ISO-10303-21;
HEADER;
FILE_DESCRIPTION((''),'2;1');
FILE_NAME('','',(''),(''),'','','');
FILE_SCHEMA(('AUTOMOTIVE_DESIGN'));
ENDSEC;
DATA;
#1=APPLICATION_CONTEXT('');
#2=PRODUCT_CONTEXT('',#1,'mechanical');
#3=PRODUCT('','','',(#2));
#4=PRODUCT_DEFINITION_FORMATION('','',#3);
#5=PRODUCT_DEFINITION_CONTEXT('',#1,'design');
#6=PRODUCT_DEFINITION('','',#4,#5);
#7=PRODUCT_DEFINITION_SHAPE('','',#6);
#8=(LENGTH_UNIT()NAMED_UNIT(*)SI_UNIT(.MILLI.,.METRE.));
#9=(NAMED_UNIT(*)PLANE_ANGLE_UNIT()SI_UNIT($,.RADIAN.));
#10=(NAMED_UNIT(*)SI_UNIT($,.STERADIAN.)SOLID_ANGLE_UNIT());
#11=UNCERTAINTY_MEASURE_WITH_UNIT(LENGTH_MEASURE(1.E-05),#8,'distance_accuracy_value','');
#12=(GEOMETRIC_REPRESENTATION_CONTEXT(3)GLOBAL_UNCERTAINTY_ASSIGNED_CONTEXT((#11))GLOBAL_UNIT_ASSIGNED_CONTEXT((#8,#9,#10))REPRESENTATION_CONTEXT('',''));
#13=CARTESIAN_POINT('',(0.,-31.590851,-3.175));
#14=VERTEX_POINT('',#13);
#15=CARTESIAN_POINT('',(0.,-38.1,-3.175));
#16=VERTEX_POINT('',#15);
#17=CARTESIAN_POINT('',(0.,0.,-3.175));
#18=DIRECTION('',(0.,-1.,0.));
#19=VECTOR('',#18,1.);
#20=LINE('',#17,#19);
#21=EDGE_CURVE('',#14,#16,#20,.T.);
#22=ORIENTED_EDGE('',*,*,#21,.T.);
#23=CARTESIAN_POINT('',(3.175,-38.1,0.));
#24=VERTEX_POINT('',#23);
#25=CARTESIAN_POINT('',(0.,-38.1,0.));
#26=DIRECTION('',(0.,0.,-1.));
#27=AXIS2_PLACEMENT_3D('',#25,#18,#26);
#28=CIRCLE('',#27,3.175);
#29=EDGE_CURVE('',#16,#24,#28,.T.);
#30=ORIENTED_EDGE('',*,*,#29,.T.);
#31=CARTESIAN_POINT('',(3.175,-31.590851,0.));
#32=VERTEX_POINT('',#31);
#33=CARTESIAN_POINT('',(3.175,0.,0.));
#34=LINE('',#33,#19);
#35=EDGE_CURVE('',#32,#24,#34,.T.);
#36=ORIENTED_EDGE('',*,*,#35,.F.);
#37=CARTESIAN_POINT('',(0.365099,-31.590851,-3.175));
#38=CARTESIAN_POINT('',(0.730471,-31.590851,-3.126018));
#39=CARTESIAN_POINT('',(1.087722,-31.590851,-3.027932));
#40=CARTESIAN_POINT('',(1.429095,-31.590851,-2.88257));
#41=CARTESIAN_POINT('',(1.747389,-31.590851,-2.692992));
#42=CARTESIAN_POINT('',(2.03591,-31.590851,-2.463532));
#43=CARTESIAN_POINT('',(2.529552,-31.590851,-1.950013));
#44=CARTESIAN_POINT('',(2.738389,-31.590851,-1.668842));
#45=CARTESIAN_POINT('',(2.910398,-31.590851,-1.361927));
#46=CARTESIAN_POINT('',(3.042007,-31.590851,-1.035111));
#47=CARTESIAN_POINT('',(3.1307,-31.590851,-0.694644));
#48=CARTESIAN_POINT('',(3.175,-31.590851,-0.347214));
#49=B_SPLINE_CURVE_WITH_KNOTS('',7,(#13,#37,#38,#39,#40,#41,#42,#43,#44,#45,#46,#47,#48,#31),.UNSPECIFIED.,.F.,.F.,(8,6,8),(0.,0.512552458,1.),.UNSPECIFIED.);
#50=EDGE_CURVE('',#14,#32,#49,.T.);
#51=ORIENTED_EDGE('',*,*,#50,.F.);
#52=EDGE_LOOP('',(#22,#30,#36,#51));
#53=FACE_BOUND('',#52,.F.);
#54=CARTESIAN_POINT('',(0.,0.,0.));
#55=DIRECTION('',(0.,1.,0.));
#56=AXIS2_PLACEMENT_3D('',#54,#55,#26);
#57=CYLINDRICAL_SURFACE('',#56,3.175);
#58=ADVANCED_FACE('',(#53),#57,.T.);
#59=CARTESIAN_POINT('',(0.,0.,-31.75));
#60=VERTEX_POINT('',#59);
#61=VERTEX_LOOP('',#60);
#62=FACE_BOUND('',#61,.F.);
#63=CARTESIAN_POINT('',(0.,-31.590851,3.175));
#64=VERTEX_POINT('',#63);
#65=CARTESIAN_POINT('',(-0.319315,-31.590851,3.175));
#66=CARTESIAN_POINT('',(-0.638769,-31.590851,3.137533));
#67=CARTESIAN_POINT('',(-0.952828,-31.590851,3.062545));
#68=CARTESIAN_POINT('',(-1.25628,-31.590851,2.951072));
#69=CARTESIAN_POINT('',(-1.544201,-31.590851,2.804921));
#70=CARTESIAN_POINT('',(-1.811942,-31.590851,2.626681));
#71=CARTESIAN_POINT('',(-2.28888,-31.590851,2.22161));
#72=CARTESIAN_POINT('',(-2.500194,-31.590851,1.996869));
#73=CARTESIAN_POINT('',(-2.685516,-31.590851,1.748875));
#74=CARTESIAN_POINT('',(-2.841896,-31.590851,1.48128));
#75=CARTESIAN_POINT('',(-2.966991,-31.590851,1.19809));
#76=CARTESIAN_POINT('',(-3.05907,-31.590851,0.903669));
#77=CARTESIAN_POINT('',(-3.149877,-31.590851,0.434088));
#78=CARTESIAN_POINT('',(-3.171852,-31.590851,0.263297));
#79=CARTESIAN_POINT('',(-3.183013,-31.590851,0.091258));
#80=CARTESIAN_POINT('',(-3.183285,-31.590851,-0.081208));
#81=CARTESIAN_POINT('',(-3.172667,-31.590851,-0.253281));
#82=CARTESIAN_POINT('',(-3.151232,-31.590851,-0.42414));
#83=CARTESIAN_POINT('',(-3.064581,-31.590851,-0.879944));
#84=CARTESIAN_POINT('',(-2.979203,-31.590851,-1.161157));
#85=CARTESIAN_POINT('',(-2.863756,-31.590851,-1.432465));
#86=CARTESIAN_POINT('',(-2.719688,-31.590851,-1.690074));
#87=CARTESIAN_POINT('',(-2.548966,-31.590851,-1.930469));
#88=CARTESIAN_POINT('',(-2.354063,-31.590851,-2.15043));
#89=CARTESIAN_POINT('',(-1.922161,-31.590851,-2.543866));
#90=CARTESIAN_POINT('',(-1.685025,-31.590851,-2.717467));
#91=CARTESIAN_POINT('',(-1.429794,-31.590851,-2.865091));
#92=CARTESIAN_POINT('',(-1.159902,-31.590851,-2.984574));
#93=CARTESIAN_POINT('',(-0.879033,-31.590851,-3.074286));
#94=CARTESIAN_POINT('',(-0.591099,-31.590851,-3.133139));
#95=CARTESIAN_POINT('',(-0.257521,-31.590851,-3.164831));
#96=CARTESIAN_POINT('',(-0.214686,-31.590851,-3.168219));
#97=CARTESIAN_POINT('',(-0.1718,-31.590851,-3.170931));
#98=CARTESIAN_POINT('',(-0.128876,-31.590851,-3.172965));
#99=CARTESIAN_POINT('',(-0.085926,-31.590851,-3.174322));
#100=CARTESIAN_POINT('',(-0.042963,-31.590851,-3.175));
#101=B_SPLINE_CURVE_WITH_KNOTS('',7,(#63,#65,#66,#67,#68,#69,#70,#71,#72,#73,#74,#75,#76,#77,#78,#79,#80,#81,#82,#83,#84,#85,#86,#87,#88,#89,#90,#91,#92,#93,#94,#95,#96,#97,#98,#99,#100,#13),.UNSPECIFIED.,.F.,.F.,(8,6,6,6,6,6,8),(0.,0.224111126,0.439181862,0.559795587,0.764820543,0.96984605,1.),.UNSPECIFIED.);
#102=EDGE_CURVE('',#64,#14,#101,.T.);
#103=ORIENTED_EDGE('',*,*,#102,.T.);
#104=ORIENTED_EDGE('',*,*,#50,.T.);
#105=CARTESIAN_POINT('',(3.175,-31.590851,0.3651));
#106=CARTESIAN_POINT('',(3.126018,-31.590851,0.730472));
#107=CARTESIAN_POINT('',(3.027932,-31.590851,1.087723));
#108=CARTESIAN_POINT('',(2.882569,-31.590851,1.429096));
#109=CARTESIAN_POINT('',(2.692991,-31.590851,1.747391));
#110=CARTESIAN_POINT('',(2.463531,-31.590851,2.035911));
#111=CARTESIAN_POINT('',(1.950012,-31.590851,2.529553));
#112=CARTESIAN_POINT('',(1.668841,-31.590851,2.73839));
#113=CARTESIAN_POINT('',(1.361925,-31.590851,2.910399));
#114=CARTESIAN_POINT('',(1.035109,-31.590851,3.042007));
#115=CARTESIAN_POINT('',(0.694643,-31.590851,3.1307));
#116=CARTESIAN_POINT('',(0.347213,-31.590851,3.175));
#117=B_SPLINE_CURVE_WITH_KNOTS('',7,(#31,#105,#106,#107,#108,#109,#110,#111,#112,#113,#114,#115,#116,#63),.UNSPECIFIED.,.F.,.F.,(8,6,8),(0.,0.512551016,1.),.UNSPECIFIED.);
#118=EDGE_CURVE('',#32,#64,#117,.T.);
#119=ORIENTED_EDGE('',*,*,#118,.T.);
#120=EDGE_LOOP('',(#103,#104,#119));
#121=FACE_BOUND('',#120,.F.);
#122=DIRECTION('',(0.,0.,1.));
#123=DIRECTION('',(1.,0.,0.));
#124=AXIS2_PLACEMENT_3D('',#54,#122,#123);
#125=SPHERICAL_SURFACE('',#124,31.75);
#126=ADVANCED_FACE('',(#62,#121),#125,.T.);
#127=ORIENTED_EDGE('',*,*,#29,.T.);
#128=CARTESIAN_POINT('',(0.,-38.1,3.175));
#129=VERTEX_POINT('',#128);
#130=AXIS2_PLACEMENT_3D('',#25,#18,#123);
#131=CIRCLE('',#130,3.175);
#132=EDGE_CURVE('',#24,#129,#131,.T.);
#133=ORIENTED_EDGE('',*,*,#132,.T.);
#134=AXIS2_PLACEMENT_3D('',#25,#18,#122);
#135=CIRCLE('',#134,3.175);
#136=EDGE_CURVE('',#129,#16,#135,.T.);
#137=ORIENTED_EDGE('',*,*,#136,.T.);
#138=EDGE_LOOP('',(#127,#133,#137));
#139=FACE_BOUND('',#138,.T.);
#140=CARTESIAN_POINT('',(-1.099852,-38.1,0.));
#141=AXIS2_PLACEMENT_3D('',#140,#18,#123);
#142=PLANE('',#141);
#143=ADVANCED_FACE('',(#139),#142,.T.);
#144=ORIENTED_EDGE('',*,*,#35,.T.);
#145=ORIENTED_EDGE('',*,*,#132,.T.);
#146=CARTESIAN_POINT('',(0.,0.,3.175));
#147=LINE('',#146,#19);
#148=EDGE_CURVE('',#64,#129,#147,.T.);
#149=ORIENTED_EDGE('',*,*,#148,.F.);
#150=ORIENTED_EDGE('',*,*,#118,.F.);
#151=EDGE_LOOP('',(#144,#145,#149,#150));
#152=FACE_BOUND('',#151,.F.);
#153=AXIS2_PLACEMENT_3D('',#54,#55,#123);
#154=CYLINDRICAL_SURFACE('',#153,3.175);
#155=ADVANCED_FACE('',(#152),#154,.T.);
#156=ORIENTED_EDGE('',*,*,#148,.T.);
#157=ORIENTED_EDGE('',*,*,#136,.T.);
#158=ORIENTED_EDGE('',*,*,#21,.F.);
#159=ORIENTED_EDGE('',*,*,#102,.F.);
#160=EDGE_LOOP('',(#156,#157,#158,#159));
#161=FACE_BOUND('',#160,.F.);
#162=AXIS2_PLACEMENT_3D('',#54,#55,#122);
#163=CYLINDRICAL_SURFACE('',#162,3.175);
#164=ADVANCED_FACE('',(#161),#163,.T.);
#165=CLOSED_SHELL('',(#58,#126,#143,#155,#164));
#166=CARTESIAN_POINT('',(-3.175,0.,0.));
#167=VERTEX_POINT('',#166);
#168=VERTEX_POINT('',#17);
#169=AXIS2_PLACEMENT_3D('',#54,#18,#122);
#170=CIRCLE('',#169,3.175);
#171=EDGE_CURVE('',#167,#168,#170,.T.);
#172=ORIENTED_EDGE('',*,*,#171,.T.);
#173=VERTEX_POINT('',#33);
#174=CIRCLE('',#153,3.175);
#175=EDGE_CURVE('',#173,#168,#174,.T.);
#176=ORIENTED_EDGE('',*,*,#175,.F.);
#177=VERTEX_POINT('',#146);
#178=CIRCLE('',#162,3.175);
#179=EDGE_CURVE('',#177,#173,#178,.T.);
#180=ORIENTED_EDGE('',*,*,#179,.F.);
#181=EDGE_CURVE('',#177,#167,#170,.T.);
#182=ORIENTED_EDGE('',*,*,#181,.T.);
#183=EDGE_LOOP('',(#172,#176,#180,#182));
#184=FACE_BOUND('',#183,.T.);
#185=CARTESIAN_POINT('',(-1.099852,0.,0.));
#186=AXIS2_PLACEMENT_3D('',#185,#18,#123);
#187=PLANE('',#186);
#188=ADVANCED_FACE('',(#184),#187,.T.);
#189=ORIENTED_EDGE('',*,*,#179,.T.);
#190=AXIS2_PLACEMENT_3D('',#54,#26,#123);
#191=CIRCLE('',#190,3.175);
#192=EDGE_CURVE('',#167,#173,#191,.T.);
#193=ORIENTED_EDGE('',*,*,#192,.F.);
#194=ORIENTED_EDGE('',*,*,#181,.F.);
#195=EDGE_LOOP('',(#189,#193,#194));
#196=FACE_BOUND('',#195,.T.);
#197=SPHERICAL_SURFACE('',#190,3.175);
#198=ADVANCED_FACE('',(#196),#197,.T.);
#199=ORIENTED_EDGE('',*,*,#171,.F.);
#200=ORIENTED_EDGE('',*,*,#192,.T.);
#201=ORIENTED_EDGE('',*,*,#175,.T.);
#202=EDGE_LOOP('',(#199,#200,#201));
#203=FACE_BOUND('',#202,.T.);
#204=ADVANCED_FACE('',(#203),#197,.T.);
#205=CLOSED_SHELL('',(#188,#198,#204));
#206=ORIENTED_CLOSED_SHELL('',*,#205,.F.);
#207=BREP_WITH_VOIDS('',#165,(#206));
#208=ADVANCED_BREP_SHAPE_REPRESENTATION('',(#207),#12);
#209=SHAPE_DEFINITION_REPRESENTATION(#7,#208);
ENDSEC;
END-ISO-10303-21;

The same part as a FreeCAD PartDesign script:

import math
import FreeCAD as App
import Part
import Sketcher
from FreeCAD import Vector
Q = App.Units.Quantity

doc = App.newDocument("Part")
body = doc.addObject("PartDesign::Body", "Body")

# Sketch on XZ plane
sketch1 = body.newObject("Sketcher::SketchObject", "Sketch")
sketch1.AttachmentSupport = (doc.getObject("XZ_Plane"), [""])
sketch1.MapMode = "FlatFace"
sketch1.addGeometry([
    Part.LineSegment(Vector(0, -3.2, 0), Vector(0, -31.8, 0)),  # 0
    Part.ArcOfCircle(Part.Circle(Vector(0, 0, 0), Vector(0, 0, 1), 31.8), math.radians(-90), math.radians(90)),  # 1
    Part.LineSegment(Vector(0, 31.8, 0), Vector(0, 3.2, 0)),  # 2
    Part.ArcOfCircle(Part.Circle(Vector(0, 0, 0), Vector(0, 0, 1), 3.2), math.radians(0), math.radians(90)),  # 3
    Part.ArcOfCircle(Part.Circle(Vector(0, 0, 0), Vector(0, 0, 1), 3.2), math.radians(-90), math.radians(0)),  # 4
], False)
sketch1.addConstraint([
    Sketcher.Constraint("Coincident", 0, 2, 1, 1),
    Sketcher.Constraint("Coincident", 1, 2, 2, 1),
    Sketcher.Constraint("Coincident", 2, 2, 3, 2),
    Sketcher.Constraint("Tangent", 3, 1, 4, 2),
    Sketcher.Constraint("Coincident", 4, 1, 0, 1),
    Sketcher.Constraint("Vertical", 0),
    Sketcher.Constraint("Vertical", 2),
    Sketcher.Constraint("Coincident", 1, 3, -1, 1),
    Sketcher.Constraint("Coincident", 3, 3, -1, 1),
    Sketcher.Constraint("Equal", 3, 4),
    Sketcher.Constraint("PointOnObject", 0, 2, -2),
    Sketcher.Constraint("PointOnObject", 1, 2, -2),
    Sketcher.Constraint("PointOnObject", 3, 1, -1),
    Sketcher.Constraint("Radius", 1, Q("1.25 in")),
    Sketcher.Constraint("Radius", 3, Q("0.125 in")),
])
revolution = body.newObject("PartDesign::Revolution", "Revolution")
revolution.Profile = sketch1
revolution.ReferenceAxis = (sketch1, ["V_Axis"])
revolution.Angle = 360

# Sketch on XZ plane
sketch2 = body.newObject("Sketcher::SketchObject", "Sketch001")
sketch2.AttachmentSupport = (doc.getObject("XZ_Plane"), [""])
sketch2.MapMode = "FlatFace"
sketch2.addGeometry([
    Part.ArcOfCircle(Part.Circle(Vector(0, 0, 0), Vector(0, 0, 1), 3.2), math.radians(90), math.radians(270)),
    Part.ArcOfCircle(Part.Circle(Vector(0, 0, 0), Vector(0, 0, 1), 3.2), math.radians(-90), math.radians(0)),
    Part.ArcOfCircle(Part.Circle(Vector(0, 0, 0), Vector(0, 0, 1), 3.2), math.radians(0), math.radians(90)),
], False)
sketch2.addConstraint([
    Sketcher.Constraint("Tangent", 0, 2, 1, 1),
    Sketcher.Constraint("Tangent", 1, 2, 2, 1),
    Sketcher.Constraint("Tangent", 2, 2, 0, 1),
    Sketcher.Constraint("Coincident", 0, 3, -1, 1),
    Sketcher.Constraint("PointOnObject", 0, 2, -2),
    Sketcher.Constraint("PointOnObject", 1, 2, -1),
    Sketcher.Constraint("PointOnObject", 2, 2, -2),
    Sketcher.Constraint("Radius", 0, Q("0.125 in")),
])
pad1 = body.newObject("PartDesign::Pad", "Pad")
pad1.Profile = sketch2
pad1.Length = Q("1.5 in")

doc.recompute()
